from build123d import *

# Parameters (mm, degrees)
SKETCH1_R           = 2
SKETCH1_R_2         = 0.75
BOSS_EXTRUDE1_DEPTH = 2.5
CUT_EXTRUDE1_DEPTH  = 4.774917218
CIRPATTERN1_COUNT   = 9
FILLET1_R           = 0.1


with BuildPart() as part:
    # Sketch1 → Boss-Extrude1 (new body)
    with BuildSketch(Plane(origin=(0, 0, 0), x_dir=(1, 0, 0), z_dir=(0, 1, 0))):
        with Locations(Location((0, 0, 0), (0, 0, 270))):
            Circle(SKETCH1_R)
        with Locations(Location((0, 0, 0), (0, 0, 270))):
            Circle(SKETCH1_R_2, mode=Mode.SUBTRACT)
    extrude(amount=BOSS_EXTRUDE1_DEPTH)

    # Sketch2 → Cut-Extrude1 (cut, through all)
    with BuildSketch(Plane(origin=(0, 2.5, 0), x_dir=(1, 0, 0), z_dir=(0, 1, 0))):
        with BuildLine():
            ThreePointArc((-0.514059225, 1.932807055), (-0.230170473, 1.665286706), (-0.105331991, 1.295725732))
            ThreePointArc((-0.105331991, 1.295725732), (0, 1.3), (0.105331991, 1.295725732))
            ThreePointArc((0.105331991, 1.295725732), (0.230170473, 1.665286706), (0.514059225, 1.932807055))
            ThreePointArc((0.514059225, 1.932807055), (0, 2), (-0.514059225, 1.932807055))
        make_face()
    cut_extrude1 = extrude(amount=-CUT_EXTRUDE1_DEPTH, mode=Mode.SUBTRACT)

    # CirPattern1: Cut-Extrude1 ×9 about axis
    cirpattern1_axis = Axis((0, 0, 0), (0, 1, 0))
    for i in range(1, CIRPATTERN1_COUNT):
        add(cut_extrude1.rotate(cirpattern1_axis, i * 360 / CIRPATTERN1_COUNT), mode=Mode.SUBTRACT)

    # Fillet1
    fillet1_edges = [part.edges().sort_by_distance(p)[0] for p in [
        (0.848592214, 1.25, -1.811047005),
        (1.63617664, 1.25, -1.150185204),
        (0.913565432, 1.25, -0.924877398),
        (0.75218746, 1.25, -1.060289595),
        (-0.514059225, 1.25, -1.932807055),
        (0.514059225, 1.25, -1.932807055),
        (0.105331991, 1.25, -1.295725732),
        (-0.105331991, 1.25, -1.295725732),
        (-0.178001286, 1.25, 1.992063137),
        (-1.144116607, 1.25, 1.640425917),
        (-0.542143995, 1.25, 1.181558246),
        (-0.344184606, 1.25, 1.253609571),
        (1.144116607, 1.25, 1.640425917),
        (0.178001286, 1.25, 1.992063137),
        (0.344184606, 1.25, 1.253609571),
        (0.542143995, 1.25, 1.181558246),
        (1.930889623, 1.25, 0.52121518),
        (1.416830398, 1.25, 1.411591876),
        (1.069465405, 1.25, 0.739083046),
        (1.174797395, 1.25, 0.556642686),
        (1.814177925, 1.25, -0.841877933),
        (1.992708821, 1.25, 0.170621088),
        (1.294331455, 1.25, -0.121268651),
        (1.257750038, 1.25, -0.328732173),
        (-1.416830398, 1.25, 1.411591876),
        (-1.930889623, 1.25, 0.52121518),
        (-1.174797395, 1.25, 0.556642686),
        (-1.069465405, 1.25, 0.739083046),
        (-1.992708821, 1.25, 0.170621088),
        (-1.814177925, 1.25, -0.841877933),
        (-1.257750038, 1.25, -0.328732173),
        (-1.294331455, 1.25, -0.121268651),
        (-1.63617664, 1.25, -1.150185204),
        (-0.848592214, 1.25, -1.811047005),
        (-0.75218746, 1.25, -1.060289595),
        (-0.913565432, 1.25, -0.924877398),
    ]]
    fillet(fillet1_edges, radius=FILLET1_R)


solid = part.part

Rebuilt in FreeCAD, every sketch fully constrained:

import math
import FreeCAD as App
import Part
import Sketcher

V = App.Vector
Q = App.Units.Quantity


def edges_at(feature, points):
    """Names of the edges that pass closest to the given points."""
    edges = feature.Shape.Edges
    near = lambda p: min(range(len(edges)), key=lambda i: edges[i].distToShape(Part.Vertex(*p))[0])
    return sorted({f"Edge{near(p) + 1}" for p in points})

doc = App.newDocument("Part")
body = doc.addObject("PartDesign::Body", "Body")

sketch1 = doc.addObject("Sketcher::SketchObject", "Sketch")
body.addObject(sketch1)
sketch1.AttachmentSupport = (doc.XZ_Plane, [""])
sketch1.MapMode = "FlatFace"
sketch1.addGeometry([
    Part.Circle(V(0, 0, 0), V(0, 0, 1), 2),
    Part.Circle(V(0, 0, 0), V(0, 0, 1), 0.8),
], False)
sketch1.addConstraint([
    Sketcher.Constraint("Coincident", 0, 3, -1, 1),
    Sketcher.Constraint("Coincident", 1, 3, -1, 1),
    Sketcher.Constraint("Diameter", 0, Q("4 mm")),
    Sketcher.Constraint("Diameter", 1, Q("1.5 mm")),
])
pad1 = doc.addObject("PartDesign::Pad", "Pad")
body.addObject(pad1)
pad1.Profile = sketch1
pad1.Length = 2.5
pad1.Reversed = True

sketch2 = doc.addObject("Sketcher::SketchObject", "Sketch001")
body.addObject(sketch2)
sketch2.AttachmentSupport = (doc.XZ_Plane, [""])
sketch2.MapMode = "FlatFace"
sketch2.AttachmentOffset = App.Placement(V(0, 0, -2.5), App.Rotation())
sketch2.addGeometry([
    Part.ArcOfCircle(Part.Circle(V(-0.91, -1.23, 0), V(0, 0, 1), 0.81), math.radians(-61), math.radians(-5)),
    Part.ArcOfCircle(Part.Circle(V(0, 0, 0), V(0, 0, 1), 1.3), math.radians(-94.65), math.radians(-85.35)),
    Part.ArcOfCircle(Part.Circle(V(0.91, -1.23, 0), V(0, 0, 1), 0.81), math.radians(-175), math.radians(-119)),
    Part.ArcOfCircle(Part.Circle(V(0, 0, 0), V(0, 0, 1), 2), math.radians(-105), math.radians(-75)),
], False)
sketch2.addConstraint([
    Sketcher.Constraint("Coincident", 0, 2, 1, 1),
    Sketcher.Constraint("Coincident", 1, 2, 2, 1),
    Sketcher.Constraint("Coincident", 2, 2, 3, 2),
    Sketcher.Constraint("Coincident", 3, 1, 0, 1),
    Sketcher.Constraint("Coincident", 1, 3, -1, 1),
    Sketcher.Constraint("Coincident", 3, 3, -1, 1),
    Sketcher.Constraint("Equal", 0, 2),
    Sketcher.Constraint("Symmetric", 0, 3, 2, 3, -2),
    Sketcher.Constraint("Radius", 3, Q("2 mm")),
    Sketcher.Constraint("Radius", 1, Q("1.3 mm")),
    Sketcher.Constraint("Radius", 0, Q("0.805211 mm")),
    Sketcher.Constraint("DistanceX", 0, 2, -1, 1, Q("0.105332 mm")),
    Sketcher.Constraint("DistanceX", -1, 1, 2, 2, Q("0.514059 mm")),
])
pocket1 = doc.addObject("PartDesign::Pocket", "Pocket")
body.addObject(pocket1)
pocket1.Profile = sketch2
pocket1.Type = "ThroughAll"
pocket1.Reversed = True
doc.recompute()

polarpattern = doc.addObject("PartDesign::PolarPattern", "PolarPattern")
body.addObject(polarpattern)
polarpattern.Originals = [pocket1]
polarpattern.Axis = (doc.Y_Axis, [""])
polarpattern.Angle = 360
polarpattern.Occurrences = 9
body.Tip = polarpattern
doc.recompute()

fillet = doc.addObject("PartDesign::Fillet", "Fillet")
body.addObject(fillet)
fillet.Base = (polarpattern, edges_at(polarpattern, [
    (0.849, 1.25, -1.811),
    (1.636, 1.25, -1.15),
    (0.914, 1.25, -0.925),
    (0.752, 1.25, -1.06),
    (-0.514, 1.25, -1.933),
    (0.514, 1.25, -1.933),
    (0.105, 1.25, -1.296),
    (-0.105, 1.25, -1.296),
    (-0.178, 1.25, 1.992),
    (-1.144, 1.25, 1.64),
    (-0.542, 1.25, 1.182),
    (-0.344, 1.25, 1.254),
    (1.144, 1.25, 1.64),
    (0.178, 1.25, 1.992),
    (0.344, 1.25, 1.254),
    (0.542, 1.25, 1.182),
    (1.931, 1.25, 0.521),
    (1.417, 1.25, 1.412),
    (1.069, 1.25, 0.739),
    (1.175, 1.25, 0.557),
    (1.814, 1.25, -0.842),
    (1.993, 1.25, 0.171),
    (1.294, 1.25, -0.121),
    (1.258, 1.25, -0.329),
    (-1.417, 1.25, 1.412),
    (-1.931, 1.25, 0.521),
    (-1.175, 1.25, 0.557),
    (-1.069, 1.25, 0.739),
    (-1.993, 1.25, 0.171),
    (-1.814, 1.25, -0.842),
    (-1.258, 1.25, -0.329),
    (-1.294, 1.25, -0.121),
    (-1.636, 1.25, -1.15),
    (-0.849, 1.25, -1.811),
    (-0.752, 1.25, -1.06),
    (-0.914, 1.25, -0.925),
]))
fillet.Radius = 0.1

doc.recompute()
